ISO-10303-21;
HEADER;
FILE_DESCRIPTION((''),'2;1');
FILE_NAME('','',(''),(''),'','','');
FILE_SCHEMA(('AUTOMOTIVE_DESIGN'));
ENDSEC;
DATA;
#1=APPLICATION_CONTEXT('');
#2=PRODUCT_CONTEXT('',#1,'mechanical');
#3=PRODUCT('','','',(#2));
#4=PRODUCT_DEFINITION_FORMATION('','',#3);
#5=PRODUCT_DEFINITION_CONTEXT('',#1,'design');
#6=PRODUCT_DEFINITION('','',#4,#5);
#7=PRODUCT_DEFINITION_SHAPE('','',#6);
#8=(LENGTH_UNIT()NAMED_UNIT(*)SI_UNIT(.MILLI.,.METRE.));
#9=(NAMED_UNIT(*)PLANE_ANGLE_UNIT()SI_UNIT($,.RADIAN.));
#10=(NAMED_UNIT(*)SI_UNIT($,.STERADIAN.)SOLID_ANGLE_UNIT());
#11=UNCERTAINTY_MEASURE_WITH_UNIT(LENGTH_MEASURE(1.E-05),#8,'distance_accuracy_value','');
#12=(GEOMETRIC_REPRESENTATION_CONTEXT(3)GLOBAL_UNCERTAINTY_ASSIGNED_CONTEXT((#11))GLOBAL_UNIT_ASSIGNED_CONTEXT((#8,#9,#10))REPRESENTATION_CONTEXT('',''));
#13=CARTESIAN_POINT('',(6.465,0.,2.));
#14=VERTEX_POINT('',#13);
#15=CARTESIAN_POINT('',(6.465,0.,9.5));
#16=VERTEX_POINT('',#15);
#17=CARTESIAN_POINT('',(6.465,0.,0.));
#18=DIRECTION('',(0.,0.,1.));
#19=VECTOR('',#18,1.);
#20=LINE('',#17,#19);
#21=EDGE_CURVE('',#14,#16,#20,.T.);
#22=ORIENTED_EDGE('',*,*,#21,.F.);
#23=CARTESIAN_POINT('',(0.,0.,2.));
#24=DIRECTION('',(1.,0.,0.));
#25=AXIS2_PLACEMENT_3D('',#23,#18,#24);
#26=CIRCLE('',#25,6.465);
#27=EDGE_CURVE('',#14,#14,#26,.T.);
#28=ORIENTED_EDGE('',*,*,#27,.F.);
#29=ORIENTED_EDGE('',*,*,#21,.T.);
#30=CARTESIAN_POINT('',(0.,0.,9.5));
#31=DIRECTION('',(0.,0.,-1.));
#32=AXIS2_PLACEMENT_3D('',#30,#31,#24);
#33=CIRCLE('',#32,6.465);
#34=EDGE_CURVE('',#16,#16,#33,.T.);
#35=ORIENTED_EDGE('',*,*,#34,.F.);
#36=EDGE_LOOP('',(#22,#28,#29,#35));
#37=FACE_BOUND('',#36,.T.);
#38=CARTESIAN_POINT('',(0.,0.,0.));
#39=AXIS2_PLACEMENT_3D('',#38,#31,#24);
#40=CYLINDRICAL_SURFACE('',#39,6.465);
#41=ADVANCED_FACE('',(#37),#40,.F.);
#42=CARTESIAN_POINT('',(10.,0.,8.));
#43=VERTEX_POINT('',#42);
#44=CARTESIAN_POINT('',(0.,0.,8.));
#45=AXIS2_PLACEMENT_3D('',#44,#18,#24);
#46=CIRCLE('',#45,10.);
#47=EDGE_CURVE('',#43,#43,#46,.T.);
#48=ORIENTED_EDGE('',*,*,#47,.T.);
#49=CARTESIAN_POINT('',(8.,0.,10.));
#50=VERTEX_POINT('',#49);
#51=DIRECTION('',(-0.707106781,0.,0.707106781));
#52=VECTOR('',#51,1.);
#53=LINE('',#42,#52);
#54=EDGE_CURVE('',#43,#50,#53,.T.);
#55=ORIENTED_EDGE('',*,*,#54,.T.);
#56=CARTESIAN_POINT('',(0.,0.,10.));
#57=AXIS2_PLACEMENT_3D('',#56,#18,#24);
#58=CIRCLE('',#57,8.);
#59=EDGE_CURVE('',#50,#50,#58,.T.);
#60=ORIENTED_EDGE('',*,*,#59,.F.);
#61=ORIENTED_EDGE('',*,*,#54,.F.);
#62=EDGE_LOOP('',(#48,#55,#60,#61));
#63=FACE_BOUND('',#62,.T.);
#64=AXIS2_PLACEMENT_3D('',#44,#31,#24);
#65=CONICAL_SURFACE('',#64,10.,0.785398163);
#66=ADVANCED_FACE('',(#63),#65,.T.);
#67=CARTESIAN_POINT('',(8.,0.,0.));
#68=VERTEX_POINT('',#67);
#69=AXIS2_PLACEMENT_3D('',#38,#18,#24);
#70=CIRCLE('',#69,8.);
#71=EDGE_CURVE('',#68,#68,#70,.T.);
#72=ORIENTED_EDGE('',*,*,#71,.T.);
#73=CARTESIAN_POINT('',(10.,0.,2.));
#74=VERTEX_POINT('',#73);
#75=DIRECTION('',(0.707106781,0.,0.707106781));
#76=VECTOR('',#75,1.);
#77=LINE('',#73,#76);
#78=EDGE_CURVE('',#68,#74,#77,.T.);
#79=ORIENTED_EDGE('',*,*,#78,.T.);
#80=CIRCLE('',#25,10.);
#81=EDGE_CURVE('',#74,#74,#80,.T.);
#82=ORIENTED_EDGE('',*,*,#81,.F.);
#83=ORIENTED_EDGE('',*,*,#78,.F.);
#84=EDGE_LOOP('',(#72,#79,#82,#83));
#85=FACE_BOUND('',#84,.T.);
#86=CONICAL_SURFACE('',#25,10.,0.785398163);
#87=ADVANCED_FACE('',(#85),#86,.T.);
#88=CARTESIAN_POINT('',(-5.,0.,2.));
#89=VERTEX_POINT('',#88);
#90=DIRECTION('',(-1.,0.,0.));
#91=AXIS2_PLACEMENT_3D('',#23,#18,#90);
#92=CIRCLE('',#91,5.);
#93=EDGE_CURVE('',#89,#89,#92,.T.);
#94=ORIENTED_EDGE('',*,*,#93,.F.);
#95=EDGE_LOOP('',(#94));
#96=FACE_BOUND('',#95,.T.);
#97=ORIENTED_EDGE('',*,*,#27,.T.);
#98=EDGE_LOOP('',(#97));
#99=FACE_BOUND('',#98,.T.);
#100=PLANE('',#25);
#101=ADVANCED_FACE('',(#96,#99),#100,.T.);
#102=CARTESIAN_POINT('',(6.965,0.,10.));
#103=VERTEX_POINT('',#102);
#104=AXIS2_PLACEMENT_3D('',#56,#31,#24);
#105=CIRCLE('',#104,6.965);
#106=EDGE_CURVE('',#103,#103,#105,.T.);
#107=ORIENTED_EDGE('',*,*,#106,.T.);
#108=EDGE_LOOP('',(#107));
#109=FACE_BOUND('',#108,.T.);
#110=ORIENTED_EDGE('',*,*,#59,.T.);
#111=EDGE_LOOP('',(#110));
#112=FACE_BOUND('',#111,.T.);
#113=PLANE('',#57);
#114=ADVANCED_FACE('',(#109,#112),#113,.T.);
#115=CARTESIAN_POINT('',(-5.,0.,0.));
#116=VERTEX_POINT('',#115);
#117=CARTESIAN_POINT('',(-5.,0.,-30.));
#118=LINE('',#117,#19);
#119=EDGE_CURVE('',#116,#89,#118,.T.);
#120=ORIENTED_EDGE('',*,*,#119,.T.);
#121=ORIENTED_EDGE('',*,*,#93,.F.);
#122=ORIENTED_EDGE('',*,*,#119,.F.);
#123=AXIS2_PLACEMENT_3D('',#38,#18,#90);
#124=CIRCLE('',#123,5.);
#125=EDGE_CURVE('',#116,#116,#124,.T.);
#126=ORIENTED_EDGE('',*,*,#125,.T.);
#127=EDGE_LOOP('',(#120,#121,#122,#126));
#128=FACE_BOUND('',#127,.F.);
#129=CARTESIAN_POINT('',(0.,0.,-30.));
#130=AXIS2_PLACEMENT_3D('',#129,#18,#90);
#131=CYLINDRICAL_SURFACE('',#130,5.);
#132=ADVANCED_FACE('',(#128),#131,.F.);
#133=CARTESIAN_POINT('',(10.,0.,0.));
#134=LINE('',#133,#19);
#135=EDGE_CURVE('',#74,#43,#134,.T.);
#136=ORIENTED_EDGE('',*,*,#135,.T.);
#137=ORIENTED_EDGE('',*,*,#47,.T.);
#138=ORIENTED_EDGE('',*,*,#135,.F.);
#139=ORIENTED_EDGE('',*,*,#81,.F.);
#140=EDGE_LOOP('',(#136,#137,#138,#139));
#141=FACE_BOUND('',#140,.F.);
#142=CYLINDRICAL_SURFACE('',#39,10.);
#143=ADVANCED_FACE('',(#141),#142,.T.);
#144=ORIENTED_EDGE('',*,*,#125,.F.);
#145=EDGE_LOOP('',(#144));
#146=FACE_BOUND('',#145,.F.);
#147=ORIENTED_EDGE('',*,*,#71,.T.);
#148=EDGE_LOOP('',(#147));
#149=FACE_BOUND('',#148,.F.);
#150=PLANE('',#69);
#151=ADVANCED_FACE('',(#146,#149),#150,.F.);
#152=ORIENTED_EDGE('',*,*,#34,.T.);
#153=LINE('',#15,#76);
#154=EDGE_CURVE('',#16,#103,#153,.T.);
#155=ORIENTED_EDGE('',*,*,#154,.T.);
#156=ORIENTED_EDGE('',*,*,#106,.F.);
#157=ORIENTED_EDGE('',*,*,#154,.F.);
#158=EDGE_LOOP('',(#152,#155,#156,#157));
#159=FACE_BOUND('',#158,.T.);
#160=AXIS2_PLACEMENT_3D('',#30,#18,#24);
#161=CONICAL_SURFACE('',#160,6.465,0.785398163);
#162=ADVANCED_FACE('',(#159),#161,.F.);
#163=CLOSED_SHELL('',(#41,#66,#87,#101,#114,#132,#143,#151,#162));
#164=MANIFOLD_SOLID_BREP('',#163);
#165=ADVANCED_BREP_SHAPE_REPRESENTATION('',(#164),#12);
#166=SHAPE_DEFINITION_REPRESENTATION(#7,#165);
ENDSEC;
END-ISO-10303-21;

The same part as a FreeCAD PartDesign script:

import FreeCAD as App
import Part
import Sketcher

V = App.Vector


def edges_at(feature, points):
    """Names of the edges that pass closest to the given points."""
    edges = feature.Shape.Edges
    near = lambda p: min(range(len(edges)), key=lambda i: edges[i].distToShape(Part.Vertex(*p))[0])
    return sorted({f"Edge{near(p) + 1}" for p in points})

doc = App.newDocument("Part")
body = doc.addObject("PartDesign::Body", "Body")

# Sketch on XY plane
sketch1 = body.newObject("Sketcher::SketchObject", "Sketch")
sketch1.AttachmentSupport = (doc.getObject("XY_Plane"), [""])
sketch1.MapMode = "FlatFace"
sketch1.addGeometry(Part.Circle(V(0, 0, 0), V(0, 0, 1), 10), False)
sketch1.addConstraint([
    Sketcher.Constraint("Coincident", 0, 3, -1, 1),
    Sketcher.Constraint("Diameter", 0, 20.0),
])
pad1 = body.newObject("PartDesign::Pad", "Pad")
pad1.Profile = sketch1
pad1.Length = 10

# Sketch on XY plane
sketch2 = body.newObject("Sketcher::SketchObject", "Sketch001")
sketch2.AttachmentSupport = (doc.getObject("XY_Plane"), [""])
sketch2.MapMode = "FlatFace"
sketch2.addGeometry(Part.Circle(V(0, 0, 0), V(0, 0, 1), 6), False)
sketch2.addConstraint([
    Sketcher.Constraint("Coincident", 0, 3, -1, 1),
    Sketcher.Constraint("Diameter", 0, 12.93),
])
pocket1 = body.newObject("PartDesign::Pocket", "Pocket")
pocket1.Profile = sketch2
pocket1.Length = 12
pocket1.Reversed = True

# Sketch on XY plane
sketch3 = body.newObject("Sketcher::SketchObject", "Sketch002")
sketch3.AttachmentSupport = (doc.getObject("XY_Plane"), [""])
sketch3.MapMode = "FlatFace"
sketch3.addGeometry(Part.Circle(V(0, 0, 0), V(0, 0, 1), 6), False)
sketch3.addConstraint([
    Sketcher.Constraint("Coincident", 0, 3, -1, 1),
    Sketcher.Constraint("Diameter", 0, 12.93),
])
pad2 = body.newObject("PartDesign::Pad", "Pad001")
pad2.Profile = sketch3
pad2.Length = 2

# Sketch on XY plane
sketch4 = body.newObject("Sketcher::SketchObject", "Sketch003")
sketch4.AttachmentSupport = (doc.getObject("XY_Plane"), [""])
sketch4.MapMode = "FlatFace"
sketch4.addGeometry(Part.Circle(V(0, 0, 0), V(0, 0, 1), 5), False)
sketch4.addConstraint([
    Sketcher.Constraint("Coincident", 0, 3, -1, 1),
    Sketcher.Constraint("Diameter", 0, 10.0),
])
doc.recompute()
hole = body.newObject("PartDesign::Hole", "Hole")
hole.Profile = sketch4
hole.ThreadType = "None"
hole.Diameter = 10
hole.DepthType = "ThroughAll"
hole.Reversed = True
doc.recompute()

chamfer = body.newObject("PartDesign::Chamfer", "Chamfer")
chamfer.Base = (hole, edges_at(hole, [(-10, 0, 10), (-10, 0, 0)]))
chamfer.ChamferType = "Two distances"
chamfer.Size = 2
chamfer.Size2 = 2
doc.recompute()

chamfer2 = body.newObject("PartDesign::Chamfer", "Chamfer001")
chamfer2.Base = (chamfer, edges_at(chamfer, [(-6.465, 0, 10)]))
chamfer2.ChamferType = "Two distances"
chamfer2.Size = 0.5
chamfer2.Size2 = 0.5

doc.recompute()
